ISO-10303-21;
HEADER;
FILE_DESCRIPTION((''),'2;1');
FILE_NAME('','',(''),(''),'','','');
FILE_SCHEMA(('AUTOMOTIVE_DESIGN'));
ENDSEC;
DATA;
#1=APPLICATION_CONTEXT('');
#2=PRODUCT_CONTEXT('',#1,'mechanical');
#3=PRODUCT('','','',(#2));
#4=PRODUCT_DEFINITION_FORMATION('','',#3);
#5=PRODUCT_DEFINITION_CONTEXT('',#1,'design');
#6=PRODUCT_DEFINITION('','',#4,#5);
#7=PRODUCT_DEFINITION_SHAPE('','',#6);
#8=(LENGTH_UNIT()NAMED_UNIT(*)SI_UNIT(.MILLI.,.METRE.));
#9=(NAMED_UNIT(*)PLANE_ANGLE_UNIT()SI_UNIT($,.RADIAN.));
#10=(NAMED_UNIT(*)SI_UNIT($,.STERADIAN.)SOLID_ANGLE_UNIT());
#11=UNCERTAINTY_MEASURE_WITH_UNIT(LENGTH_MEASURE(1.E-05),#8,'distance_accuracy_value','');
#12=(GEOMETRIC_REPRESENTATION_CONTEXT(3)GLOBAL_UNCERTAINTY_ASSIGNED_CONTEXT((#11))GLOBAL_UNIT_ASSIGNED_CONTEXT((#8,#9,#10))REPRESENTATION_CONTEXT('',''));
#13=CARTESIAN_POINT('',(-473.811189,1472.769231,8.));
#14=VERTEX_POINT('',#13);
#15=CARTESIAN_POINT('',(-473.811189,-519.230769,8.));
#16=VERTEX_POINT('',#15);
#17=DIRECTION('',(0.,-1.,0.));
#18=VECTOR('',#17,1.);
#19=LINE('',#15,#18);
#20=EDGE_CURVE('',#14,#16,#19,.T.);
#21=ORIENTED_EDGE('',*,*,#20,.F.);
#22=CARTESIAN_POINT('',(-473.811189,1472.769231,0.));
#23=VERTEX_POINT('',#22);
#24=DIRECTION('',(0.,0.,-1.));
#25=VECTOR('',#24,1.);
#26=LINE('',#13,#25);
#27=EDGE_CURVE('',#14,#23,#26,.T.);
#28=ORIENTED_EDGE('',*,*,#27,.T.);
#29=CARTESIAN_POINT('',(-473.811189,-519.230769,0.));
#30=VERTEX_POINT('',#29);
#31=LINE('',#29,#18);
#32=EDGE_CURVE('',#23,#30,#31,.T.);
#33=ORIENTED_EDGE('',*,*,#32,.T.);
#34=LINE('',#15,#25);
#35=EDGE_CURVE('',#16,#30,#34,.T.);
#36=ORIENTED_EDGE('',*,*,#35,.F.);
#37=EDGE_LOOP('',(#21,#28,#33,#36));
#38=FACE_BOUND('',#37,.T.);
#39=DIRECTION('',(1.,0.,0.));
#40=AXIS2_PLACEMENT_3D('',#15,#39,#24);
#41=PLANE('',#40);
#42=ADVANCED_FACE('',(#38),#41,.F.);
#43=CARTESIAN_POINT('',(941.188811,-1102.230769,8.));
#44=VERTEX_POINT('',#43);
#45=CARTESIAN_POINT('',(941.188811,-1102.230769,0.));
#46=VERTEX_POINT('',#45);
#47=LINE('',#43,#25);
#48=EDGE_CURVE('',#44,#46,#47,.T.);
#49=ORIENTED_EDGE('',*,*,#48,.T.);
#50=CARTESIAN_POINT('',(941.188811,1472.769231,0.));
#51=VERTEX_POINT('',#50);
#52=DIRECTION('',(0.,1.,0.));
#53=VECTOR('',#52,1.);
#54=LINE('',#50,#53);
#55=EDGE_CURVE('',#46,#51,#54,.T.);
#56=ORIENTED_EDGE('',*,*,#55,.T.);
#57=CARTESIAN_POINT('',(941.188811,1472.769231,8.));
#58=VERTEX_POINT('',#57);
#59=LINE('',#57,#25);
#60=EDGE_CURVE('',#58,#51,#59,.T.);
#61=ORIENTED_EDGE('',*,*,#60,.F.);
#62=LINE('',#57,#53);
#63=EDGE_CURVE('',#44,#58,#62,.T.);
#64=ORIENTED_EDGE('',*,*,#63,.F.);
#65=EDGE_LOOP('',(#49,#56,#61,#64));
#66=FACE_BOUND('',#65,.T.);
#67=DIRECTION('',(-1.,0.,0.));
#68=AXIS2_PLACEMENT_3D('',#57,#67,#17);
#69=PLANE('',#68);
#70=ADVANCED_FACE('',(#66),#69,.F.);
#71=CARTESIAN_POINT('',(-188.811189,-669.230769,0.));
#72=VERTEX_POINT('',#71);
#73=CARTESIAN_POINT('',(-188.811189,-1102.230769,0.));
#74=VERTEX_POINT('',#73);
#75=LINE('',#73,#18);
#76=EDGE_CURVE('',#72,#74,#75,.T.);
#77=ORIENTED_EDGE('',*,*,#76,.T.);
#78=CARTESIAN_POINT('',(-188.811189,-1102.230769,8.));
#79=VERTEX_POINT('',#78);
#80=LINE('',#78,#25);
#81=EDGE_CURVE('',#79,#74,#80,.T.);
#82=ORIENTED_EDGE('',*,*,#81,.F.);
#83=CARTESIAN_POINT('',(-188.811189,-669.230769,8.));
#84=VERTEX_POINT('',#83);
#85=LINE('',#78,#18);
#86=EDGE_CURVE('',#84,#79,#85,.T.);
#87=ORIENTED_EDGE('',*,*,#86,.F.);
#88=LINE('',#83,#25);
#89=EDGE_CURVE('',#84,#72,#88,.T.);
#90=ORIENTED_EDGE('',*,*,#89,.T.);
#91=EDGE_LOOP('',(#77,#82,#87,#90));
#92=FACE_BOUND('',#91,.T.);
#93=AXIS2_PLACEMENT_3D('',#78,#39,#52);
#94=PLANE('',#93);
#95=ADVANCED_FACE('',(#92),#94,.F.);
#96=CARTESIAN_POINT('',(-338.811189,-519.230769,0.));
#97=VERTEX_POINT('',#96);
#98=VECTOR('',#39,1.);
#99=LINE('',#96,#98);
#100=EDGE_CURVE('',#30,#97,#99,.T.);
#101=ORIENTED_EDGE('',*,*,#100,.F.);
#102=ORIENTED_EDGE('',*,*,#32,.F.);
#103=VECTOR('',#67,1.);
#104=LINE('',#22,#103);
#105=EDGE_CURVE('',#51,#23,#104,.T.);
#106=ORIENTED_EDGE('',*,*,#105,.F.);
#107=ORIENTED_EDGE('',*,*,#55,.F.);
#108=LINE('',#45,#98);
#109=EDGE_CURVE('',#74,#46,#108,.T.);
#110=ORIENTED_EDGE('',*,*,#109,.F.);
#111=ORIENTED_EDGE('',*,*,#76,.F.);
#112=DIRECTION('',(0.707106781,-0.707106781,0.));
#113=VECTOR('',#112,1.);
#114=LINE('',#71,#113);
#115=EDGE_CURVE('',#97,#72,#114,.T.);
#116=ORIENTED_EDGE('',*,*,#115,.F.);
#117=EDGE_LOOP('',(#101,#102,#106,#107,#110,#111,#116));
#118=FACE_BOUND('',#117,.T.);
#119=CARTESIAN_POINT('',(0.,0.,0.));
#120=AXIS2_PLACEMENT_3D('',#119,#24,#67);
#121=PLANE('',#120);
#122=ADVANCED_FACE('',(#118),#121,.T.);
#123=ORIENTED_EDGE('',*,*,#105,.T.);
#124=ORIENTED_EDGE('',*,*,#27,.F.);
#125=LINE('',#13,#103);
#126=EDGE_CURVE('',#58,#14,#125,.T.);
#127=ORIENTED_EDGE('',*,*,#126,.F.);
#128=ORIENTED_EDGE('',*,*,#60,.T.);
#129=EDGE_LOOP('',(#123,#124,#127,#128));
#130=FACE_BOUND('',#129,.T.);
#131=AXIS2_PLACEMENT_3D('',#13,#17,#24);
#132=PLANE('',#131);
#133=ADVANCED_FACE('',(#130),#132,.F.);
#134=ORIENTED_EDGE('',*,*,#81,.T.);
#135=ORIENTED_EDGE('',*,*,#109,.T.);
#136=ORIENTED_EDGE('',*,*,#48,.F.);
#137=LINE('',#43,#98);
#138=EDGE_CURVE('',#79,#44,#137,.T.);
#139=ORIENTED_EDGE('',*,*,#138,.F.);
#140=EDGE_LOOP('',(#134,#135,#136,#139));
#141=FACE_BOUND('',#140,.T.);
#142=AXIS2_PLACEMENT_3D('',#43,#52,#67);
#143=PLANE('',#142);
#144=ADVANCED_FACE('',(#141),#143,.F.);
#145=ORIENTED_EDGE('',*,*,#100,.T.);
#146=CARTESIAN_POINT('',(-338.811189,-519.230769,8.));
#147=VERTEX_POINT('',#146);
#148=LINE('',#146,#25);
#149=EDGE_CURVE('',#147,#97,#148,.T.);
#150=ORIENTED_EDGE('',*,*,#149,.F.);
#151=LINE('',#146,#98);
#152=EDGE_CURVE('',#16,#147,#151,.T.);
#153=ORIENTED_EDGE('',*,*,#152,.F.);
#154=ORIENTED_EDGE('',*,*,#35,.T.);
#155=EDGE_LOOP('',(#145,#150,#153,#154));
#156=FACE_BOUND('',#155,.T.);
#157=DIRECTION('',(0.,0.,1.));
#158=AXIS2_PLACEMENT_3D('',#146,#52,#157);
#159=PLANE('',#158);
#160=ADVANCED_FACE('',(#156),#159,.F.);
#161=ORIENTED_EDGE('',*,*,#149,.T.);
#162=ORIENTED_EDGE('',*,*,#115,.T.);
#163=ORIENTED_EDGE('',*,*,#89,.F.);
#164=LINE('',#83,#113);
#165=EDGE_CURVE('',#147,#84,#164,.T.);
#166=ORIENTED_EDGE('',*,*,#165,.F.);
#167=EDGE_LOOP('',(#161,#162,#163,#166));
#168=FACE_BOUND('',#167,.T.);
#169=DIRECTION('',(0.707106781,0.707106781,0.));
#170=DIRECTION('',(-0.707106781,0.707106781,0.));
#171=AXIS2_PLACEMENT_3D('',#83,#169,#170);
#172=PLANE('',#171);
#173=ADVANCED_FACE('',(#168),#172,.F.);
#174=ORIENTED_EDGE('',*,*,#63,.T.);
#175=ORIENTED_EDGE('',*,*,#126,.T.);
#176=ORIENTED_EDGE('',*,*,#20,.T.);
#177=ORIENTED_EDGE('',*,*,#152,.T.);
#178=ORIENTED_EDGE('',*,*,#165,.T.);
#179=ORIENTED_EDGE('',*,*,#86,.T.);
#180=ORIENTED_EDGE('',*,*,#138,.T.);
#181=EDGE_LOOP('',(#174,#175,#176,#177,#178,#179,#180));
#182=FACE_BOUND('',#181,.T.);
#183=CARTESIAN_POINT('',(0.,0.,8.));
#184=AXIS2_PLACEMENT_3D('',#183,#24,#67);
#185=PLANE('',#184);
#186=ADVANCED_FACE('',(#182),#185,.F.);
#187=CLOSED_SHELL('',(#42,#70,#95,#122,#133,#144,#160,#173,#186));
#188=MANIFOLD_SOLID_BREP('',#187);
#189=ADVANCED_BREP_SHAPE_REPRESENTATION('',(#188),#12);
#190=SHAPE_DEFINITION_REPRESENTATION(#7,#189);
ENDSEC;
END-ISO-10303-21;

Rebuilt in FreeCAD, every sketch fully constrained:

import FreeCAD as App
import Part
import Sketcher
from FreeCAD import Vector

doc = App.newDocument("Part")
params = doc.addObject("Spreadsheet::Sheet", "Params")
for row, (alias, value) in enumerate([
    ("sketch1_width", "1415 mm"),
    ("sketch1_width2", "135 mm"),
    ("sketch1_width3", "1130 mm"),
    ("sketch1_height", "1992 mm"),
    ("sketch1_height2", "433 mm"),
    ("pad1_length", "8 mm"),
], start=1):
    params.set(f"A{row}", alias)
    params.set(f"B{row}", "=" + value)
    params.setAlias(f"B{row}", alias)

body = doc.addObject("PartDesign::Body", "Body")

# Sketch on XY plane
sketch1 = body.newObject("Sketcher::SketchObject", "Sketch")
sketch1.AttachmentSupport = (doc.getObject("XY_Plane"), [""])
sketch1.MapMode = "FlatFace"
sketch1.addGeometry(Part.LineSegment(Vector(941.188811, 1472.769231, 0), Vector(-473.811189, 1472.769231, 0)), False)
sketch1.addGeometry(Part.LineSegment(Vector(-473.811189, 1472.769231, 0), Vector(-473.811189, -519.230769, 0)), False)
sketch1.addGeometry(Part.LineSegment(Vector(-473.811189, -519.230769, 0), Vector(-338.811189, -519.230769, 0)), False)
sketch1.addGeometry(Part.LineSegment(Vector(-338.811189, -519.230769, 0), Vector(-188.811189, -669.230769, 0)), False)
sketch1.addGeometry(Part.LineSegment(Vector(-188.811189, -669.230769, 0), Vector(-188.811189, -1102.230769, 0)), False)
sketch1.addGeometry(Part.LineSegment(Vector(-188.811189, -1102.230769, 0), Vector(941.188811, -1102.230769, 0)), False)
sketch1.addGeometry(Part.LineSegment(Vector(941.188811, -1102.230769, 0), Vector(941.188811, 1472.769231, 0)), False)
sketch1.addConstraint(Sketcher.Constraint("Coincident", 0, 2, 1, 1))
sketch1.addConstraint(Sketcher.Constraint("Coincident", 1, 2, 2, 1))
sketch1.addConstraint(Sketcher.Constraint("Coincident", 2, 2, 3, 1))
sketch1.addConstraint(Sketcher.Constraint("Coincident", 3, 2, 4, 1))
sketch1.addConstraint(Sketcher.Constraint("Coincident", 4, 2, 5, 1))
sketch1.addConstraint(Sketcher.Constraint("Coincident", 5, 2, 6, 1))
sketch1.addConstraint(Sketcher.Constraint("Coincident", 6, 2, 0, 1))
sketch1.addConstraint(Sketcher.Constraint("Horizontal", 0))
sketch1.addConstraint(Sketcher.Constraint("Vertical", 1))
sketch1.addConstraint(Sketcher.Constraint("Horizontal", 2))
sketch1.addConstraint(Sketcher.Constraint("Vertical", 4))
sketch1.addConstraint(Sketcher.Constraint("Horizontal", 5))
sketch1.addConstraint(Sketcher.Constraint("Vertical", 6))
sketch1.addConstraint(Sketcher.Constraint("DistanceX", 0, 2, 0, 1, 1415.0))
sketch1.addConstraint(Sketcher.Constraint("DistanceX", 2, 1, 2, 2, 135.0))
sketch1.addConstraint(Sketcher.Constraint("DistanceX", 5, 1, 5, 2, 1130.0))
sketch1.addConstraint(Sketcher.Constraint("DistanceY", 1, 2, 1, 1, 1992.0))
sketch1.addConstraint(Sketcher.Constraint("DistanceY", 4, 2, 4, 1, 433.0))
sketch1.addConstraint(Sketcher.Constraint("DistanceY", 6, 1, 6, 2, 2575.0))
sketch1.addConstraint(Sketcher.Constraint("DistanceX", 0, 2, -1, 1, 473.811189))
sketch1.addConstraint(Sketcher.Constraint("DistanceY", -1, 1, 0, 2, 1472.769231))
sketch1.setExpression("Constraints[13]", "Params.sketch1_width")
sketch1.setExpression("Constraints[14]", "Params.sketch1_width2")
sketch1.setExpression("Constraints[15]", "Params.sketch1_width3")
sketch1.setExpression("Constraints[16]", "Params.sketch1_height")
sketch1.setExpression("Constraints[17]", "Params.sketch1_height2")
pad1 = body.newObject("PartDesign::Pad", "Pad")
pad1.Profile = sketch1
pad1.setExpression("Length", "Params.pad1_length")

doc.recompute()
